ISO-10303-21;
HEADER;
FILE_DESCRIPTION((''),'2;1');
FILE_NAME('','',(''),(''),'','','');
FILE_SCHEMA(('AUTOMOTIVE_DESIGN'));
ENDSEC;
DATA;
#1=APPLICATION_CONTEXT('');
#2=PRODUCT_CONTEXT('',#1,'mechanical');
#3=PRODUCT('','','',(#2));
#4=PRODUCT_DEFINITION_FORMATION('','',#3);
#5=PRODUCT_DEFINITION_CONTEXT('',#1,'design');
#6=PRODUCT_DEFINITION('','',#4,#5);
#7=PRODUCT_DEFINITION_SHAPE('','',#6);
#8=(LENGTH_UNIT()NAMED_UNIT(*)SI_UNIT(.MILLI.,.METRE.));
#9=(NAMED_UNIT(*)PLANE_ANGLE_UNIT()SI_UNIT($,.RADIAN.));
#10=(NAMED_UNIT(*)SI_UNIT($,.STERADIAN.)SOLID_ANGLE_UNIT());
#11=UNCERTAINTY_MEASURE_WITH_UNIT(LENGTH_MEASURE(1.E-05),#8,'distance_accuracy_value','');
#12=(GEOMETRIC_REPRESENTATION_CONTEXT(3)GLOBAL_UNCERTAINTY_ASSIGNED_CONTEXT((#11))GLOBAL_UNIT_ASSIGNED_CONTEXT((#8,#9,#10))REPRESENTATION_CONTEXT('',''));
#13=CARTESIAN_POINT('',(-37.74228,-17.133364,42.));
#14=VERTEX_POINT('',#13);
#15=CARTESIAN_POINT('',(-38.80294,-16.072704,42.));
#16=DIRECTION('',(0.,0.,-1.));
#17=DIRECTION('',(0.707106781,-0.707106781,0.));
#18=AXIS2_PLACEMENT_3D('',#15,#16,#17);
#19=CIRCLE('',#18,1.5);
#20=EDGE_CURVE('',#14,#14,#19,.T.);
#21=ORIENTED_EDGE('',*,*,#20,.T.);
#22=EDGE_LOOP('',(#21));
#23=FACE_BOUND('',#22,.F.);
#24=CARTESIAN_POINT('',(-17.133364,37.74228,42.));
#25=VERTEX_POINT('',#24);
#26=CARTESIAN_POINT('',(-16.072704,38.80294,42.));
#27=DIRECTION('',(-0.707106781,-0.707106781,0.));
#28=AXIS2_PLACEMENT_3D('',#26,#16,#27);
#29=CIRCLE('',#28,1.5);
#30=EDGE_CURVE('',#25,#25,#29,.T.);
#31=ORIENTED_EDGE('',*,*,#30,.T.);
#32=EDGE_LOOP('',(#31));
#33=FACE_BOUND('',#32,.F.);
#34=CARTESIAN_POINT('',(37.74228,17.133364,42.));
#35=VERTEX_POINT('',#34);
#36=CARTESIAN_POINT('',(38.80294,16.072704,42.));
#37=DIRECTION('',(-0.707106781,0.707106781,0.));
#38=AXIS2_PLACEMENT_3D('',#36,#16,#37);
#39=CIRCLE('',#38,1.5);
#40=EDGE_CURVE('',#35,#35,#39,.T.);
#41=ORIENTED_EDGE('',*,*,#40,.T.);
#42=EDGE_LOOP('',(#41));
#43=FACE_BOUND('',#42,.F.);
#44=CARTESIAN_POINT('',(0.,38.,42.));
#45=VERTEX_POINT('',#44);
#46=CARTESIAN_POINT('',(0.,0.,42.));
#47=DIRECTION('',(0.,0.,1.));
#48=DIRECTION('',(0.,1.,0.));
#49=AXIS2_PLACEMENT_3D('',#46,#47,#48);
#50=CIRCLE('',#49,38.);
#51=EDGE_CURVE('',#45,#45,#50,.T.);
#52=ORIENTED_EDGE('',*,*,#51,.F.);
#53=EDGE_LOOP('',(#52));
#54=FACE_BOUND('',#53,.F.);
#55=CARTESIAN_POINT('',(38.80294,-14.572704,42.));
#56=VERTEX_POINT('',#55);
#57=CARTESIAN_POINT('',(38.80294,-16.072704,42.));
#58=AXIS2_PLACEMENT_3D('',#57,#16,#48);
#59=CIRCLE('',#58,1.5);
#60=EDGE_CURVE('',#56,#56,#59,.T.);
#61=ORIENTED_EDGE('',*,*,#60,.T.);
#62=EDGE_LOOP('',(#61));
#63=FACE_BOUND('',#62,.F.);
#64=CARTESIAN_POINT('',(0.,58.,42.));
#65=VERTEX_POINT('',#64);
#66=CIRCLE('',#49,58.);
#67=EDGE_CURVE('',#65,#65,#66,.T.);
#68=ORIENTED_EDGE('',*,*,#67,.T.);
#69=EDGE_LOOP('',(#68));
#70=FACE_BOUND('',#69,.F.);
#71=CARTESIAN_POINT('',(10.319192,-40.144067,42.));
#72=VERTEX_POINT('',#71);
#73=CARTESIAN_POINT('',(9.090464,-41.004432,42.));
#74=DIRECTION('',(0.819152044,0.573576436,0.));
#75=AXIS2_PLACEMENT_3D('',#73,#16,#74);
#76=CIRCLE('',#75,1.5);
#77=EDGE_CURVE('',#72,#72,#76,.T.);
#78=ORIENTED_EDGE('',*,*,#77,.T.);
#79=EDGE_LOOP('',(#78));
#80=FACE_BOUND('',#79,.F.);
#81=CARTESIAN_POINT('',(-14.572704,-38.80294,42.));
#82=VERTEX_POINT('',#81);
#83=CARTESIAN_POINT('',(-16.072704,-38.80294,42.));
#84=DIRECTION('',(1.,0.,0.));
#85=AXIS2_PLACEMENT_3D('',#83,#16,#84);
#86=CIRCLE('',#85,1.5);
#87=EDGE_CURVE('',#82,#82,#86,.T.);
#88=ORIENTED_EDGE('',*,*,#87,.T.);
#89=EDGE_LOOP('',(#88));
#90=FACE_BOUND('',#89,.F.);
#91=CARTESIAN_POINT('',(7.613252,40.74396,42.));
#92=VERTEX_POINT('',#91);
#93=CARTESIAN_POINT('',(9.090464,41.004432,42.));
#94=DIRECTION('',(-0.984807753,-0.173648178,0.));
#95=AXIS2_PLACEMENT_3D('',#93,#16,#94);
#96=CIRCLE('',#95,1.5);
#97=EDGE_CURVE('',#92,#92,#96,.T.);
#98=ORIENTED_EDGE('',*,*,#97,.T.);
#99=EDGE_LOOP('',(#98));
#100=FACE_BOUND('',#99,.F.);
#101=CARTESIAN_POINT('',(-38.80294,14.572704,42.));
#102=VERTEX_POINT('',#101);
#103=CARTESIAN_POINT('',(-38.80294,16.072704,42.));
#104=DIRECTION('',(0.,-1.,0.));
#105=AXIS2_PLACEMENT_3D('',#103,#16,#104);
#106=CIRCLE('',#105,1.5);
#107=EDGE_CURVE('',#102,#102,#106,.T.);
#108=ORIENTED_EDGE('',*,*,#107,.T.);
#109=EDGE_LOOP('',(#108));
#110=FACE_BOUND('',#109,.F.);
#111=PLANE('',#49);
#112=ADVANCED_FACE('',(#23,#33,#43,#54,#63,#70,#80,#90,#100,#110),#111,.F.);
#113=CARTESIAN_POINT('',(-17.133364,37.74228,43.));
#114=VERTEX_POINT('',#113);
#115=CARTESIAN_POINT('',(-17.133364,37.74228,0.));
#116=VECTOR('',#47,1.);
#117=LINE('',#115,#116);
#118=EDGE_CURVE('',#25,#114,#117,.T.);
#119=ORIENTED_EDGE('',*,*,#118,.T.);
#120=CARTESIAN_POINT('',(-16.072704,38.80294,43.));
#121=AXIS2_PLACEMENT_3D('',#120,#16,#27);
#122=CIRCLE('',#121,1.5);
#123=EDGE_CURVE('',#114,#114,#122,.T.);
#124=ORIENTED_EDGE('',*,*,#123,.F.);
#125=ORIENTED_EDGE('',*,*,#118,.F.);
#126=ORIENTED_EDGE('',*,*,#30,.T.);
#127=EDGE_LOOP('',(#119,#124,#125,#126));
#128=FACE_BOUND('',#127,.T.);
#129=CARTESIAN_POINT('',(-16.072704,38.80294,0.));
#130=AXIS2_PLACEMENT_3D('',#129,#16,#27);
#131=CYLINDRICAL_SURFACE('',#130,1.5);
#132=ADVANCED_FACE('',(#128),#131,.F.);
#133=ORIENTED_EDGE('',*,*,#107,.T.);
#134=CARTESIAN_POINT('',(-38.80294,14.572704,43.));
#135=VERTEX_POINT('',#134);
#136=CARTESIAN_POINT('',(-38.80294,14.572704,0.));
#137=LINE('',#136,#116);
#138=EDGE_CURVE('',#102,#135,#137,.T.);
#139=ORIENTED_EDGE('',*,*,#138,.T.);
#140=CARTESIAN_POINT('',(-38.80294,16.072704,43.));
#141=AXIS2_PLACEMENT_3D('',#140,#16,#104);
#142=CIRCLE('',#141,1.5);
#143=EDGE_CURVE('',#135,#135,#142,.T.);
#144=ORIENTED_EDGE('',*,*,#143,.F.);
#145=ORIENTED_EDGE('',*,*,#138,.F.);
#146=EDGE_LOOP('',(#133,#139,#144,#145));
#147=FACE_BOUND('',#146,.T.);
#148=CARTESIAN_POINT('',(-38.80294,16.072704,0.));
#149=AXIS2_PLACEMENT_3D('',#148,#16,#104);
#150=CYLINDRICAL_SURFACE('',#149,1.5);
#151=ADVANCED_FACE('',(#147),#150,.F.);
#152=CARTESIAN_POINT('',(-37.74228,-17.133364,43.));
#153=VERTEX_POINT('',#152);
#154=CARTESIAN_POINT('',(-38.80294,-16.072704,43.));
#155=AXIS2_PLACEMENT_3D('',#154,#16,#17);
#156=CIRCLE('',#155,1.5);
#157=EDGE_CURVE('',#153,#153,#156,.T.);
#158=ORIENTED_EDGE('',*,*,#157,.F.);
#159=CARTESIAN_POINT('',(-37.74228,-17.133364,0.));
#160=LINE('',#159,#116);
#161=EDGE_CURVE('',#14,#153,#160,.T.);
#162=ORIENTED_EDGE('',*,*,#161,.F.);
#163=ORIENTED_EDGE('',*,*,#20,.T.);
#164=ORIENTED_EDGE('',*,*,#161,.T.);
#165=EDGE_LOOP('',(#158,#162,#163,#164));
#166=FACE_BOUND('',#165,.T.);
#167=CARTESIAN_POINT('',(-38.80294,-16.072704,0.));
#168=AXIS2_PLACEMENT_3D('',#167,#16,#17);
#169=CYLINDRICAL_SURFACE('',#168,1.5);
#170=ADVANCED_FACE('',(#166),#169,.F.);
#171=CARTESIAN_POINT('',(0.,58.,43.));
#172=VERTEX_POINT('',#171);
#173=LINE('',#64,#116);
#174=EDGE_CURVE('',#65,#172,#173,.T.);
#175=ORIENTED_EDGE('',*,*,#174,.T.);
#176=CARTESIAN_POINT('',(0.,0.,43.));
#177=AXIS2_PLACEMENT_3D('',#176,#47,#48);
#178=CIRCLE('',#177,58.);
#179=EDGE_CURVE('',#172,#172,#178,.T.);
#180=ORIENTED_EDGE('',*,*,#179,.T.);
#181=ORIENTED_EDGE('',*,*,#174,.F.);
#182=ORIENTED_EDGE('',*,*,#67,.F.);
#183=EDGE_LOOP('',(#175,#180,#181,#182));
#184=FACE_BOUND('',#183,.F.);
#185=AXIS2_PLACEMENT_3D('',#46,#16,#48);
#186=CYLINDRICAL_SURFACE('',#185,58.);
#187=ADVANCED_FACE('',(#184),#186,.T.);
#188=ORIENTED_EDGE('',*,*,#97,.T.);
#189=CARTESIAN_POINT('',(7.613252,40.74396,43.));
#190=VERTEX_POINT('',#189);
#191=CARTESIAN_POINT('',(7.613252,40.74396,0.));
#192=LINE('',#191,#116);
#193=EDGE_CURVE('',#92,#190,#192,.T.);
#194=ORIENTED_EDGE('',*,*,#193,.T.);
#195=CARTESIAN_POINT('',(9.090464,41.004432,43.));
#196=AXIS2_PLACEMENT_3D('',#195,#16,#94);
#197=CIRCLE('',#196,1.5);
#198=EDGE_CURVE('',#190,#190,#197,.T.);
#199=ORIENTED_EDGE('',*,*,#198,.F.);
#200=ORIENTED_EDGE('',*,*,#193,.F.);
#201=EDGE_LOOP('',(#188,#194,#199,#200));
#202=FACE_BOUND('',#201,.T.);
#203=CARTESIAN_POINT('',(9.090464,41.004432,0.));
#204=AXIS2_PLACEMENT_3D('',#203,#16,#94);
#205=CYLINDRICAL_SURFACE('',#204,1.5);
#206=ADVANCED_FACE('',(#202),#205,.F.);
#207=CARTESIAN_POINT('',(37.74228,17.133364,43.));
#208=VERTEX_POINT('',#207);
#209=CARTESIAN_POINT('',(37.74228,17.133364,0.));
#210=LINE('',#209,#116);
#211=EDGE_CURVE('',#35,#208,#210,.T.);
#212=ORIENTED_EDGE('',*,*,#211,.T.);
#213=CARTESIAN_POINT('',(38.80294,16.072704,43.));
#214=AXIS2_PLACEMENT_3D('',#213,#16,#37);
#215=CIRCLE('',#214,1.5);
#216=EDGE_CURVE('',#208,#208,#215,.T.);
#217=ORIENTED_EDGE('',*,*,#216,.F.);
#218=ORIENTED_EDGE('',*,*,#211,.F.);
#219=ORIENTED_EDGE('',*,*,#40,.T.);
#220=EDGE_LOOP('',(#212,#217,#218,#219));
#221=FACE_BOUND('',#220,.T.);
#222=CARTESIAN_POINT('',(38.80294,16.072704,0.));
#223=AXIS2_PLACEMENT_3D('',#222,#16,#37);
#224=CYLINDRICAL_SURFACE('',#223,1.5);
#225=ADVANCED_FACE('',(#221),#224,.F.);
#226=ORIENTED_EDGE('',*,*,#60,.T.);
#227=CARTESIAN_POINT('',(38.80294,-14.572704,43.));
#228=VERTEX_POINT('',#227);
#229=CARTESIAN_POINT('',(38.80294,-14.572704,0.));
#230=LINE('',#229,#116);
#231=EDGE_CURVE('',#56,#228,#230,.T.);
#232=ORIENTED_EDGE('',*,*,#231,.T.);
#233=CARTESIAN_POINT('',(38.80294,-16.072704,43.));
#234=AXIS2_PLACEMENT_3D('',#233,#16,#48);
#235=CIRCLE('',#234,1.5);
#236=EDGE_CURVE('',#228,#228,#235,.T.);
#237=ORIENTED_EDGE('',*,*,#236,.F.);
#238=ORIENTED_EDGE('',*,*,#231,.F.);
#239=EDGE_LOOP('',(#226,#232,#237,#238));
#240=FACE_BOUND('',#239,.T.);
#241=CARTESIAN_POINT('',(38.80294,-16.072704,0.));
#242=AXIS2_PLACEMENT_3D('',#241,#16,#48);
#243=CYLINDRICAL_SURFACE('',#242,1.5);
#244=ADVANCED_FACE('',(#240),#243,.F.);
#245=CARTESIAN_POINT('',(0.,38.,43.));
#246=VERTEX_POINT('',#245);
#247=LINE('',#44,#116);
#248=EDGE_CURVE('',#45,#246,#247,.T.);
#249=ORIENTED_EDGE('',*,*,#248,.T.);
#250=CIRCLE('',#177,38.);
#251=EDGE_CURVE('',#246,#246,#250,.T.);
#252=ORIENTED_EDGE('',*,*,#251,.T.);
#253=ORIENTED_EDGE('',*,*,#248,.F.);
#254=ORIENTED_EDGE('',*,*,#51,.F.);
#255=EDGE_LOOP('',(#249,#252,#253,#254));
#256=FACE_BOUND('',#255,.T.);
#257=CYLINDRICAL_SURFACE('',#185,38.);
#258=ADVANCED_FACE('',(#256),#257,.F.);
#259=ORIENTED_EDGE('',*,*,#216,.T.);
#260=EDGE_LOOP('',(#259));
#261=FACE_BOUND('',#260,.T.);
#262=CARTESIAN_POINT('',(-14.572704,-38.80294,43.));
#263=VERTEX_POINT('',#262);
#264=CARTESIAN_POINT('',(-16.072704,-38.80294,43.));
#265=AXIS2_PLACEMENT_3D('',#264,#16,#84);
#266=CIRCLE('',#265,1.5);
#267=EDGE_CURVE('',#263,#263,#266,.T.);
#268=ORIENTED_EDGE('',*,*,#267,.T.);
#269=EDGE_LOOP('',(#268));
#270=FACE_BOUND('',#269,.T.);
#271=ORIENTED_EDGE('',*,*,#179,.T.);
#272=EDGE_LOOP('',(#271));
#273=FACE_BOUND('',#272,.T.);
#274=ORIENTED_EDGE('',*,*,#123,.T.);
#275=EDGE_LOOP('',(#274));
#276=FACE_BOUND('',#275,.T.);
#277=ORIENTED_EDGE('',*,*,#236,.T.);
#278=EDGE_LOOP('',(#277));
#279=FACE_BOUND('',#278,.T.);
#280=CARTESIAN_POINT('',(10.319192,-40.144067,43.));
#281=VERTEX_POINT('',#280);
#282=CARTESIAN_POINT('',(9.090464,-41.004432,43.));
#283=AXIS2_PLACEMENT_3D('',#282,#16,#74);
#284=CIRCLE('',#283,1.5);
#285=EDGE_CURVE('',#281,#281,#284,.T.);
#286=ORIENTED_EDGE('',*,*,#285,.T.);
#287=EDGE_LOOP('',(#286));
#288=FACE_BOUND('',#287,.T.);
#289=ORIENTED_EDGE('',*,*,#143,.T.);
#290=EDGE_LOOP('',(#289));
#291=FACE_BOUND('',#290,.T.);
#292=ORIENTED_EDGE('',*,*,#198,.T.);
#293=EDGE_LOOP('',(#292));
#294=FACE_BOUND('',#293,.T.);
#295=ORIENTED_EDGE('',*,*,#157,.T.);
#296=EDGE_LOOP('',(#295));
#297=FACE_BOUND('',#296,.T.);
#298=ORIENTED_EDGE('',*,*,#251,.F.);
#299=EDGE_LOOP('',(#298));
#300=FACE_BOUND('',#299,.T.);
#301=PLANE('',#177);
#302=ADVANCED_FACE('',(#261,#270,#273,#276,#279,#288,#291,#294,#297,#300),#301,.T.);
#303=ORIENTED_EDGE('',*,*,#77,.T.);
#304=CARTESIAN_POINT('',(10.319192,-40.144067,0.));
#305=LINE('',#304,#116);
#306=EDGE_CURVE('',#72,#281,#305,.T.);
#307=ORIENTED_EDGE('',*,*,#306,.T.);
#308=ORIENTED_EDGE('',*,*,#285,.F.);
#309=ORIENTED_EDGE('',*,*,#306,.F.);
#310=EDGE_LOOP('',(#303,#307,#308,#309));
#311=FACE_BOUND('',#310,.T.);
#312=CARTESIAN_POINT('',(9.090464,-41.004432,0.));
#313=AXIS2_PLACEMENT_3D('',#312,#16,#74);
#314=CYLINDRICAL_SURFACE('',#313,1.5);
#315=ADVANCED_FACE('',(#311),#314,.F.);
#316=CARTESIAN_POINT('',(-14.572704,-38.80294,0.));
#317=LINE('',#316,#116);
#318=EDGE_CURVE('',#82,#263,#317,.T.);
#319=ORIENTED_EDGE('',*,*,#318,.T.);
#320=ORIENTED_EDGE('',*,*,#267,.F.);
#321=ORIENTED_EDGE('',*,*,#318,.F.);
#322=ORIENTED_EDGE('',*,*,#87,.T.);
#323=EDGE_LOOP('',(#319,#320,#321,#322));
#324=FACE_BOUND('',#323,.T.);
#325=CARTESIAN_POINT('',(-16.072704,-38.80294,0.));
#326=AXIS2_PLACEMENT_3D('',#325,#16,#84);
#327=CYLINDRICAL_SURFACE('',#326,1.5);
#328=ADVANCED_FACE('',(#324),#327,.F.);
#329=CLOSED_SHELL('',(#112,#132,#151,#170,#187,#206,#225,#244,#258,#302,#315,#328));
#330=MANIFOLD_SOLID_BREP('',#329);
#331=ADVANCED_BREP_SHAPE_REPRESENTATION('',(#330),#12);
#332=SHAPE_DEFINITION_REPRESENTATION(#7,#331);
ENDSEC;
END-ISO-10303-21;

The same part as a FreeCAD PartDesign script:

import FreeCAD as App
import Part
import Sketcher

doc = App.newDocument("Part")
params = doc.addObject("Spreadsheet::Sheet", "Params")
for row, (alias, value) in enumerate([
    ("sketch1_diameter", "3 mm"),
    ("pad1_length", "100 mm"),
    ("sketch2_diameter", "3 mm"),
    ("pad2_length", "100 mm"),
    ("sketch3_diameter", "3 mm"),
    ("pad3_length", "100 mm"),
    ("sketch4_diameter", "3 mm"),
    ("pad4_length", "100 mm"),
    ("sketch5_diameter", "3 mm"),
    ("pad5_length", "100 mm"),
    ("sketch6_diameter", "3 mm"),
    ("pad6_length", "100 mm"),
    ("sketch7_diameter", "3 mm"),
    ("pad7_length", "100 mm"),
    ("sketch8_diameter", "3 mm"),
    ("pad8_length", "100 mm"),
    ("sketch9_diameter", "116 mm"),
    ("sketch9_diameter2", "76 mm"),
    ("pad9_length", "1 mm"),
], start=1):
    params.set(f"A{row}", alias)
    params.set(f"B{row}", "=" + value)
    params.setAlias(f"B{row}", alias)

body = doc.addObject("PartDesign::Body", "Body")

sketch1 = body.newObject("Sketcher::SketchObject", "Sketch")
sketch1.AttachmentSupport = (doc.getObject("XY_Plane"), [""])
sketch1.MapMode = "FlatFace"
sketch1.addGeometry(Part.Circle(App.Vector(0, 0, 0), App.Vector(0, 0, 1), 1.5), False)
sketch1.addConstraint(Sketcher.Constraint("Coincident", 0, 3, -1, 1))
sketch1.addConstraint(Sketcher.Constraint("Diameter", 0, 3.0))
sketch1.setExpression("Constraints[1]", "Params.sketch1_diameter")
pad1 = body.newObject("PartDesign::Pad", "Pad")
pad1.Profile = sketch1
pad1.setExpression("Length", "Params.pad1_length")
body2 = doc.addObject("PartDesign::Body", "Body001")
doc.recompute()

body.Placement = App.Placement(App.Vector(41.004432, -9.090464, 0), App.Rotation(App.Vector(0, 0, 1), 100))
boolean = body2.newObject("PartDesign::Boolean", "Boolean")
boolean.Type = "Fuse"
boolean.addObjects([body])
body3 = doc.addObject("PartDesign::Body", "Body002")

sketch2 = body3.newObject("Sketcher::SketchObject", "Sketch001")
sketch2.AttachmentSupport = (doc.getObject("XY_Plane002"), [""])
sketch2.MapMode = "FlatFace"
sketch2.addGeometry(Part.Circle(App.Vector(0, 0, 0), App.Vector(0, 0, 1), 1.5), False)
sketch2.addConstraint(Sketcher.Constraint("Coincident", 0, 3, -1, 1))
sketch2.addConstraint(Sketcher.Constraint("Diameter", 0, 3.0))
sketch2.setExpression("Constraints[1]", "Params.sketch2_diameter")
pad2 = body3.newObject("PartDesign::Pad", "Pad001")
pad2.Profile = sketch2
pad2.setExpression("Length", "Params.pad2_length")
body4 = doc.addObject("PartDesign::Body", "Body003")
doc.recompute()

body3.Placement = App.Placement(App.Vector(38.80294, 16.072704, 0), App.Rotation(App.Vector(0, 0, 1), 135))
boolean2 = body4.newObject("PartDesign::Boolean", "Boolean001")
boolean2.Type = "Fuse"
boolean2.addObjects([body3])
body5 = doc.addObject("PartDesign::Body", "Body004")

sketch3 = body5.newObject("Sketcher::SketchObject", "Sketch002")
sketch3.AttachmentSupport = (doc.getObject("XY_Plane004"), [""])
sketch3.MapMode = "FlatFace"
sketch3.addGeometry(Part.Circle(App.Vector(16.1, 38.8, 0), App.Vector(0, 0, 1), 1.5), False)
sketch3.addConstraint(Sketcher.Constraint("Diameter", 0, 3.0))
sketch3.addConstraint(Sketcher.Constraint("DistanceY", -1, 1, 0, 3, 38.80294))
sketch3.addConstraint(Sketcher.Constraint("DistanceX", -1, 1, 0, 3, 16.072704))
sketch3.setExpression("Constraints[0]", "Params.sketch3_diameter")
pad3 = body5.newObject("PartDesign::Pad", "Pad002")
pad3.Profile = sketch3
pad3.setExpression("Length", "Params.pad3_length")
body6 = doc.addObject("PartDesign::Body", "Body005")

sketch4 = body6.newObject("Sketcher::SketchObject", "Sketch003")
sketch4.AttachmentSupport = (doc.getObject("XY_Plane005"), [""])
sketch4.MapMode = "FlatFace"
sketch4.addGeometry(Part.Circle(App.Vector(0, 0, 0), App.Vector(0, 0, 1), 1.5), False)
sketch4.addConstraint(Sketcher.Constraint("Coincident", 0, 3, -1, 1))
sketch4.addConstraint(Sketcher.Constraint("Diameter", 0, 3.0))
sketch4.setExpression("Constraints[1]", "Params.sketch4_diameter")
pad4 = body6.newObject("PartDesign::Pad", "Pad003")
pad4.Profile = sketch4
pad4.setExpression("Length", "Params.pad4_length")
body7 = doc.addObject("PartDesign::Body", "Body006")
doc.recompute()

body6.Placement = App.Placement(App.Vector(-16.072704, 38.80294, 0), App.Rotation(App.Vector(0, 0, 1), 225))
boolean3 = body7.newObject("PartDesign::Boolean", "Boolean002")
boolean3.Type = "Fuse"
boolean3.addObjects([body6])
body8 = doc.addObject("PartDesign::Body", "Body007")

sketch5 = body8.newObject("Sketcher::SketchObject", "Sketch004")
sketch5.AttachmentSupport = (doc.getObject("XY_Plane007"), [""])
sketch5.MapMode = "FlatFace"
sketch5.addGeometry(Part.Circle(App.Vector(-38.8, 16.1, 0), App.Vector(0, 0, 1), 1.5), False)
sketch5.addConstraint(Sketcher.Constraint("Diameter", 0, 3.0))
sketch5.addConstraint(Sketcher.Constraint("DistanceX", 0, 3, -1, 1, 38.80294))
sketch5.addConstraint(Sketcher.Constraint("DistanceY", -1, 1, 0, 3, 16.072704))
sketch5.setExpression("Constraints[0]", "Params.sketch5_diameter")
pad5 = body8.newObject("PartDesign::Pad", "Pad004")
pad5.Profile = sketch5
pad5.setExpression("Length", "Params.pad5_length")
body9 = doc.addObject("PartDesign::Body", "Body008")

sketch6 = body9.newObject("Sketcher::SketchObject", "Sketch005")
sketch6.AttachmentSupport = (doc.getObject("XY_Plane008"), [""])
sketch6.MapMode = "FlatFace"
sketch6.addGeometry(Part.Circle(App.Vector(0, 0, 0), App.Vector(0, 0, 1), 1.5), False)
sketch6.addConstraint(Sketcher.Constraint("Coincident", 0, 3, -1, 1))
sketch6.addConstraint(Sketcher.Constraint("Diameter", 0, 3.0))
sketch6.setExpression("Constraints[1]", "Params.sketch6_diameter")
pad6 = body9.newObject("PartDesign::Pad", "Pad005")
pad6.Profile = sketch6
pad6.setExpression("Length", "Params.pad6_length")
body10 = doc.addObject("PartDesign::Body", "Body009")
doc.recompute()

body9.Placement = App.Placement(App.Vector(-41.004432, -9.090464, 0), App.Rotation(App.Vector(0, 0, -1), 55))
boolean4 = body10.newObject("PartDesign::Boolean", "Boolean003")
boolean4.Type = "Fuse"
boolean4.addObjects([body9])
body11 = doc.addObject("PartDesign::Body", "Body010")

sketch7 = body11.newObject("Sketcher::SketchObject", "Sketch006")
sketch7.AttachmentSupport = (doc.getObject("XY_Plane010"), [""])
sketch7.MapMode = "FlatFace"
sketch7.addGeometry(Part.Circle(App.Vector(-16.1, -38.8, 0), App.Vector(0, 0, 1), 1.5), False)
sketch7.addConstraint(Sketcher.Constraint("Diameter", 0, 3.0))
sketch7.addConstraint(Sketcher.Constraint("DistanceY", 0, 3, -1, 1, 38.80294))
sketch7.addConstraint(Sketcher.Constraint("DistanceX", 0, 3, -1, 1, 16.072704))
sketch7.setExpression("Constraints[0]", "Params.sketch7_diameter")
pad7 = body11.newObject("PartDesign::Pad", "Pad006")
pad7.Profile = sketch7
pad7.setExpression("Length", "Params.pad7_length")
body12 = doc.addObject("PartDesign::Body", "Body011")

sketch8 = body12.newObject("Sketcher::SketchObject", "Sketch007")
sketch8.AttachmentSupport = (doc.getObject("XY_Plane011"), [""])
sketch8.MapMode = "FlatFace"
sketch8.addGeometry(Part.Circle(App.Vector(0, 0, 0), App.Vector(0, 0, 1), 1.5), False)
sketch8.addConstraint(Sketcher.Constraint("Coincident", 0, 3, -1, 1))
sketch8.addConstraint(Sketcher.Constraint("Diameter", 0, 3.0))
sketch8.setExpression("Constraints[1]", "Params.sketch8_diameter")
pad8 = body12.newObject("PartDesign::Pad", "Pad007")
pad8.Profile = sketch8
pad8.setExpression("Length", "Params.pad8_length")
body13 = doc.addObject("PartDesign::Body", "Body012")
body13.AllowCompound = True
doc.recompute()

body12.Placement = App.Placement(App.Vector(16.072704, -38.80294, 0), App.Rotation(App.Vector(0, 0, 1), 45))
boolean5 = body13.newObject("PartDesign::Boolean", "Boolean004")
boolean5.Type = "Fuse"
boolean5.addObjects([body12])
doc.recompute()

boolean6 = body13.newObject("PartDesign::Boolean", "Boolean005")
boolean6.Type = "Fuse"
boolean6.addObjects([body2])
doc.recompute()

boolean7 = body13.newObject("PartDesign::Boolean", "Boolean006")
boolean7.Type = "Fuse"
boolean7.addObjects([body4])
doc.recompute()

boolean8 = body13.newObject("PartDesign::Boolean", "Boolean007")
boolean8.Type = "Fuse"
boolean8.addObjects([body5])
doc.recompute()

boolean9 = body13.newObject("PartDesign::Boolean", "Boolean008")
boolean9.Type = "Fuse"
boolean9.addObjects([body7])
doc.recompute()

boolean10 = body13.newObject("PartDesign::Boolean", "Boolean009")
boolean10.Type = "Fuse"
boolean10.addObjects([body8])
doc.recompute()

boolean11 = body13.newObject("PartDesign::Boolean", "Boolean010")
boolean11.Type = "Fuse"
boolean11.addObjects([body10])
doc.recompute()

boolean12 = body13.newObject("PartDesign::Boolean", "Boolean011")
boolean12.Type = "Fuse"
boolean12.addObjects([body11])
body14 = doc.addObject("PartDesign::Body", "Body013")

sketch9 = body14.newObject("Sketcher::SketchObject", "Sketch008")
sketch9.AttachmentSupport = (doc.getObject("XY_Plane013"), [""])
sketch9.MapMode = "FlatFace"
sketch9.AttachmentOffset = App.Placement(App.Vector(0, 0, 42), App.Rotation())
sketch9.addGeometry(Part.Circle(App.Vector(0, 0, 0), App.Vector(0, 0, 1), 58), False)
sketch9.addGeometry(Part.Circle(App.Vector(0, 0, 0), App.Vector(0, 0, 1), 38), False)
sketch9.addConstraint(Sketcher.Constraint("Coincident", 0, 3, -1, 1))
sketch9.addConstraint(Sketcher.Constraint("Coincident", 1, 3, -1, 1))
sketch9.addConstraint(Sketcher.Constraint("Diameter", 0, 116.0))
sketch9.addConstraint(Sketcher.Constraint("Diameter", 1, 76.0))
sketch9.setExpression("Constraints[2]", "Params.sketch9_diameter")
sketch9.setExpression("Constraints[3]", "Params.sketch9_diameter2")
pad9 = body14.newObject("PartDesign::Pad", "Pad008")
pad9.Profile = sketch9
pad9.setExpression("Length", "Params.pad9_length")
doc.recompute()

boolean13 = body14.newObject("PartDesign::Boolean", "Boolean012")
boolean13.Type = "Cut"
boolean13.addObjects([body13])
body15 = doc.addObject("PartDesign::Body", "Body014")
doc.recompute()

body14.Placement = App.Placement(App.Vector(0, 0, 0), App.Rotation(App.Vector(0, 0, 1), 90))
boolean14 = body15.newObject("PartDesign::Boolean", "Boolean013")
boolean14.Type = "Fuse"
boolean14.addObjects([body14])

doc.recompute()
